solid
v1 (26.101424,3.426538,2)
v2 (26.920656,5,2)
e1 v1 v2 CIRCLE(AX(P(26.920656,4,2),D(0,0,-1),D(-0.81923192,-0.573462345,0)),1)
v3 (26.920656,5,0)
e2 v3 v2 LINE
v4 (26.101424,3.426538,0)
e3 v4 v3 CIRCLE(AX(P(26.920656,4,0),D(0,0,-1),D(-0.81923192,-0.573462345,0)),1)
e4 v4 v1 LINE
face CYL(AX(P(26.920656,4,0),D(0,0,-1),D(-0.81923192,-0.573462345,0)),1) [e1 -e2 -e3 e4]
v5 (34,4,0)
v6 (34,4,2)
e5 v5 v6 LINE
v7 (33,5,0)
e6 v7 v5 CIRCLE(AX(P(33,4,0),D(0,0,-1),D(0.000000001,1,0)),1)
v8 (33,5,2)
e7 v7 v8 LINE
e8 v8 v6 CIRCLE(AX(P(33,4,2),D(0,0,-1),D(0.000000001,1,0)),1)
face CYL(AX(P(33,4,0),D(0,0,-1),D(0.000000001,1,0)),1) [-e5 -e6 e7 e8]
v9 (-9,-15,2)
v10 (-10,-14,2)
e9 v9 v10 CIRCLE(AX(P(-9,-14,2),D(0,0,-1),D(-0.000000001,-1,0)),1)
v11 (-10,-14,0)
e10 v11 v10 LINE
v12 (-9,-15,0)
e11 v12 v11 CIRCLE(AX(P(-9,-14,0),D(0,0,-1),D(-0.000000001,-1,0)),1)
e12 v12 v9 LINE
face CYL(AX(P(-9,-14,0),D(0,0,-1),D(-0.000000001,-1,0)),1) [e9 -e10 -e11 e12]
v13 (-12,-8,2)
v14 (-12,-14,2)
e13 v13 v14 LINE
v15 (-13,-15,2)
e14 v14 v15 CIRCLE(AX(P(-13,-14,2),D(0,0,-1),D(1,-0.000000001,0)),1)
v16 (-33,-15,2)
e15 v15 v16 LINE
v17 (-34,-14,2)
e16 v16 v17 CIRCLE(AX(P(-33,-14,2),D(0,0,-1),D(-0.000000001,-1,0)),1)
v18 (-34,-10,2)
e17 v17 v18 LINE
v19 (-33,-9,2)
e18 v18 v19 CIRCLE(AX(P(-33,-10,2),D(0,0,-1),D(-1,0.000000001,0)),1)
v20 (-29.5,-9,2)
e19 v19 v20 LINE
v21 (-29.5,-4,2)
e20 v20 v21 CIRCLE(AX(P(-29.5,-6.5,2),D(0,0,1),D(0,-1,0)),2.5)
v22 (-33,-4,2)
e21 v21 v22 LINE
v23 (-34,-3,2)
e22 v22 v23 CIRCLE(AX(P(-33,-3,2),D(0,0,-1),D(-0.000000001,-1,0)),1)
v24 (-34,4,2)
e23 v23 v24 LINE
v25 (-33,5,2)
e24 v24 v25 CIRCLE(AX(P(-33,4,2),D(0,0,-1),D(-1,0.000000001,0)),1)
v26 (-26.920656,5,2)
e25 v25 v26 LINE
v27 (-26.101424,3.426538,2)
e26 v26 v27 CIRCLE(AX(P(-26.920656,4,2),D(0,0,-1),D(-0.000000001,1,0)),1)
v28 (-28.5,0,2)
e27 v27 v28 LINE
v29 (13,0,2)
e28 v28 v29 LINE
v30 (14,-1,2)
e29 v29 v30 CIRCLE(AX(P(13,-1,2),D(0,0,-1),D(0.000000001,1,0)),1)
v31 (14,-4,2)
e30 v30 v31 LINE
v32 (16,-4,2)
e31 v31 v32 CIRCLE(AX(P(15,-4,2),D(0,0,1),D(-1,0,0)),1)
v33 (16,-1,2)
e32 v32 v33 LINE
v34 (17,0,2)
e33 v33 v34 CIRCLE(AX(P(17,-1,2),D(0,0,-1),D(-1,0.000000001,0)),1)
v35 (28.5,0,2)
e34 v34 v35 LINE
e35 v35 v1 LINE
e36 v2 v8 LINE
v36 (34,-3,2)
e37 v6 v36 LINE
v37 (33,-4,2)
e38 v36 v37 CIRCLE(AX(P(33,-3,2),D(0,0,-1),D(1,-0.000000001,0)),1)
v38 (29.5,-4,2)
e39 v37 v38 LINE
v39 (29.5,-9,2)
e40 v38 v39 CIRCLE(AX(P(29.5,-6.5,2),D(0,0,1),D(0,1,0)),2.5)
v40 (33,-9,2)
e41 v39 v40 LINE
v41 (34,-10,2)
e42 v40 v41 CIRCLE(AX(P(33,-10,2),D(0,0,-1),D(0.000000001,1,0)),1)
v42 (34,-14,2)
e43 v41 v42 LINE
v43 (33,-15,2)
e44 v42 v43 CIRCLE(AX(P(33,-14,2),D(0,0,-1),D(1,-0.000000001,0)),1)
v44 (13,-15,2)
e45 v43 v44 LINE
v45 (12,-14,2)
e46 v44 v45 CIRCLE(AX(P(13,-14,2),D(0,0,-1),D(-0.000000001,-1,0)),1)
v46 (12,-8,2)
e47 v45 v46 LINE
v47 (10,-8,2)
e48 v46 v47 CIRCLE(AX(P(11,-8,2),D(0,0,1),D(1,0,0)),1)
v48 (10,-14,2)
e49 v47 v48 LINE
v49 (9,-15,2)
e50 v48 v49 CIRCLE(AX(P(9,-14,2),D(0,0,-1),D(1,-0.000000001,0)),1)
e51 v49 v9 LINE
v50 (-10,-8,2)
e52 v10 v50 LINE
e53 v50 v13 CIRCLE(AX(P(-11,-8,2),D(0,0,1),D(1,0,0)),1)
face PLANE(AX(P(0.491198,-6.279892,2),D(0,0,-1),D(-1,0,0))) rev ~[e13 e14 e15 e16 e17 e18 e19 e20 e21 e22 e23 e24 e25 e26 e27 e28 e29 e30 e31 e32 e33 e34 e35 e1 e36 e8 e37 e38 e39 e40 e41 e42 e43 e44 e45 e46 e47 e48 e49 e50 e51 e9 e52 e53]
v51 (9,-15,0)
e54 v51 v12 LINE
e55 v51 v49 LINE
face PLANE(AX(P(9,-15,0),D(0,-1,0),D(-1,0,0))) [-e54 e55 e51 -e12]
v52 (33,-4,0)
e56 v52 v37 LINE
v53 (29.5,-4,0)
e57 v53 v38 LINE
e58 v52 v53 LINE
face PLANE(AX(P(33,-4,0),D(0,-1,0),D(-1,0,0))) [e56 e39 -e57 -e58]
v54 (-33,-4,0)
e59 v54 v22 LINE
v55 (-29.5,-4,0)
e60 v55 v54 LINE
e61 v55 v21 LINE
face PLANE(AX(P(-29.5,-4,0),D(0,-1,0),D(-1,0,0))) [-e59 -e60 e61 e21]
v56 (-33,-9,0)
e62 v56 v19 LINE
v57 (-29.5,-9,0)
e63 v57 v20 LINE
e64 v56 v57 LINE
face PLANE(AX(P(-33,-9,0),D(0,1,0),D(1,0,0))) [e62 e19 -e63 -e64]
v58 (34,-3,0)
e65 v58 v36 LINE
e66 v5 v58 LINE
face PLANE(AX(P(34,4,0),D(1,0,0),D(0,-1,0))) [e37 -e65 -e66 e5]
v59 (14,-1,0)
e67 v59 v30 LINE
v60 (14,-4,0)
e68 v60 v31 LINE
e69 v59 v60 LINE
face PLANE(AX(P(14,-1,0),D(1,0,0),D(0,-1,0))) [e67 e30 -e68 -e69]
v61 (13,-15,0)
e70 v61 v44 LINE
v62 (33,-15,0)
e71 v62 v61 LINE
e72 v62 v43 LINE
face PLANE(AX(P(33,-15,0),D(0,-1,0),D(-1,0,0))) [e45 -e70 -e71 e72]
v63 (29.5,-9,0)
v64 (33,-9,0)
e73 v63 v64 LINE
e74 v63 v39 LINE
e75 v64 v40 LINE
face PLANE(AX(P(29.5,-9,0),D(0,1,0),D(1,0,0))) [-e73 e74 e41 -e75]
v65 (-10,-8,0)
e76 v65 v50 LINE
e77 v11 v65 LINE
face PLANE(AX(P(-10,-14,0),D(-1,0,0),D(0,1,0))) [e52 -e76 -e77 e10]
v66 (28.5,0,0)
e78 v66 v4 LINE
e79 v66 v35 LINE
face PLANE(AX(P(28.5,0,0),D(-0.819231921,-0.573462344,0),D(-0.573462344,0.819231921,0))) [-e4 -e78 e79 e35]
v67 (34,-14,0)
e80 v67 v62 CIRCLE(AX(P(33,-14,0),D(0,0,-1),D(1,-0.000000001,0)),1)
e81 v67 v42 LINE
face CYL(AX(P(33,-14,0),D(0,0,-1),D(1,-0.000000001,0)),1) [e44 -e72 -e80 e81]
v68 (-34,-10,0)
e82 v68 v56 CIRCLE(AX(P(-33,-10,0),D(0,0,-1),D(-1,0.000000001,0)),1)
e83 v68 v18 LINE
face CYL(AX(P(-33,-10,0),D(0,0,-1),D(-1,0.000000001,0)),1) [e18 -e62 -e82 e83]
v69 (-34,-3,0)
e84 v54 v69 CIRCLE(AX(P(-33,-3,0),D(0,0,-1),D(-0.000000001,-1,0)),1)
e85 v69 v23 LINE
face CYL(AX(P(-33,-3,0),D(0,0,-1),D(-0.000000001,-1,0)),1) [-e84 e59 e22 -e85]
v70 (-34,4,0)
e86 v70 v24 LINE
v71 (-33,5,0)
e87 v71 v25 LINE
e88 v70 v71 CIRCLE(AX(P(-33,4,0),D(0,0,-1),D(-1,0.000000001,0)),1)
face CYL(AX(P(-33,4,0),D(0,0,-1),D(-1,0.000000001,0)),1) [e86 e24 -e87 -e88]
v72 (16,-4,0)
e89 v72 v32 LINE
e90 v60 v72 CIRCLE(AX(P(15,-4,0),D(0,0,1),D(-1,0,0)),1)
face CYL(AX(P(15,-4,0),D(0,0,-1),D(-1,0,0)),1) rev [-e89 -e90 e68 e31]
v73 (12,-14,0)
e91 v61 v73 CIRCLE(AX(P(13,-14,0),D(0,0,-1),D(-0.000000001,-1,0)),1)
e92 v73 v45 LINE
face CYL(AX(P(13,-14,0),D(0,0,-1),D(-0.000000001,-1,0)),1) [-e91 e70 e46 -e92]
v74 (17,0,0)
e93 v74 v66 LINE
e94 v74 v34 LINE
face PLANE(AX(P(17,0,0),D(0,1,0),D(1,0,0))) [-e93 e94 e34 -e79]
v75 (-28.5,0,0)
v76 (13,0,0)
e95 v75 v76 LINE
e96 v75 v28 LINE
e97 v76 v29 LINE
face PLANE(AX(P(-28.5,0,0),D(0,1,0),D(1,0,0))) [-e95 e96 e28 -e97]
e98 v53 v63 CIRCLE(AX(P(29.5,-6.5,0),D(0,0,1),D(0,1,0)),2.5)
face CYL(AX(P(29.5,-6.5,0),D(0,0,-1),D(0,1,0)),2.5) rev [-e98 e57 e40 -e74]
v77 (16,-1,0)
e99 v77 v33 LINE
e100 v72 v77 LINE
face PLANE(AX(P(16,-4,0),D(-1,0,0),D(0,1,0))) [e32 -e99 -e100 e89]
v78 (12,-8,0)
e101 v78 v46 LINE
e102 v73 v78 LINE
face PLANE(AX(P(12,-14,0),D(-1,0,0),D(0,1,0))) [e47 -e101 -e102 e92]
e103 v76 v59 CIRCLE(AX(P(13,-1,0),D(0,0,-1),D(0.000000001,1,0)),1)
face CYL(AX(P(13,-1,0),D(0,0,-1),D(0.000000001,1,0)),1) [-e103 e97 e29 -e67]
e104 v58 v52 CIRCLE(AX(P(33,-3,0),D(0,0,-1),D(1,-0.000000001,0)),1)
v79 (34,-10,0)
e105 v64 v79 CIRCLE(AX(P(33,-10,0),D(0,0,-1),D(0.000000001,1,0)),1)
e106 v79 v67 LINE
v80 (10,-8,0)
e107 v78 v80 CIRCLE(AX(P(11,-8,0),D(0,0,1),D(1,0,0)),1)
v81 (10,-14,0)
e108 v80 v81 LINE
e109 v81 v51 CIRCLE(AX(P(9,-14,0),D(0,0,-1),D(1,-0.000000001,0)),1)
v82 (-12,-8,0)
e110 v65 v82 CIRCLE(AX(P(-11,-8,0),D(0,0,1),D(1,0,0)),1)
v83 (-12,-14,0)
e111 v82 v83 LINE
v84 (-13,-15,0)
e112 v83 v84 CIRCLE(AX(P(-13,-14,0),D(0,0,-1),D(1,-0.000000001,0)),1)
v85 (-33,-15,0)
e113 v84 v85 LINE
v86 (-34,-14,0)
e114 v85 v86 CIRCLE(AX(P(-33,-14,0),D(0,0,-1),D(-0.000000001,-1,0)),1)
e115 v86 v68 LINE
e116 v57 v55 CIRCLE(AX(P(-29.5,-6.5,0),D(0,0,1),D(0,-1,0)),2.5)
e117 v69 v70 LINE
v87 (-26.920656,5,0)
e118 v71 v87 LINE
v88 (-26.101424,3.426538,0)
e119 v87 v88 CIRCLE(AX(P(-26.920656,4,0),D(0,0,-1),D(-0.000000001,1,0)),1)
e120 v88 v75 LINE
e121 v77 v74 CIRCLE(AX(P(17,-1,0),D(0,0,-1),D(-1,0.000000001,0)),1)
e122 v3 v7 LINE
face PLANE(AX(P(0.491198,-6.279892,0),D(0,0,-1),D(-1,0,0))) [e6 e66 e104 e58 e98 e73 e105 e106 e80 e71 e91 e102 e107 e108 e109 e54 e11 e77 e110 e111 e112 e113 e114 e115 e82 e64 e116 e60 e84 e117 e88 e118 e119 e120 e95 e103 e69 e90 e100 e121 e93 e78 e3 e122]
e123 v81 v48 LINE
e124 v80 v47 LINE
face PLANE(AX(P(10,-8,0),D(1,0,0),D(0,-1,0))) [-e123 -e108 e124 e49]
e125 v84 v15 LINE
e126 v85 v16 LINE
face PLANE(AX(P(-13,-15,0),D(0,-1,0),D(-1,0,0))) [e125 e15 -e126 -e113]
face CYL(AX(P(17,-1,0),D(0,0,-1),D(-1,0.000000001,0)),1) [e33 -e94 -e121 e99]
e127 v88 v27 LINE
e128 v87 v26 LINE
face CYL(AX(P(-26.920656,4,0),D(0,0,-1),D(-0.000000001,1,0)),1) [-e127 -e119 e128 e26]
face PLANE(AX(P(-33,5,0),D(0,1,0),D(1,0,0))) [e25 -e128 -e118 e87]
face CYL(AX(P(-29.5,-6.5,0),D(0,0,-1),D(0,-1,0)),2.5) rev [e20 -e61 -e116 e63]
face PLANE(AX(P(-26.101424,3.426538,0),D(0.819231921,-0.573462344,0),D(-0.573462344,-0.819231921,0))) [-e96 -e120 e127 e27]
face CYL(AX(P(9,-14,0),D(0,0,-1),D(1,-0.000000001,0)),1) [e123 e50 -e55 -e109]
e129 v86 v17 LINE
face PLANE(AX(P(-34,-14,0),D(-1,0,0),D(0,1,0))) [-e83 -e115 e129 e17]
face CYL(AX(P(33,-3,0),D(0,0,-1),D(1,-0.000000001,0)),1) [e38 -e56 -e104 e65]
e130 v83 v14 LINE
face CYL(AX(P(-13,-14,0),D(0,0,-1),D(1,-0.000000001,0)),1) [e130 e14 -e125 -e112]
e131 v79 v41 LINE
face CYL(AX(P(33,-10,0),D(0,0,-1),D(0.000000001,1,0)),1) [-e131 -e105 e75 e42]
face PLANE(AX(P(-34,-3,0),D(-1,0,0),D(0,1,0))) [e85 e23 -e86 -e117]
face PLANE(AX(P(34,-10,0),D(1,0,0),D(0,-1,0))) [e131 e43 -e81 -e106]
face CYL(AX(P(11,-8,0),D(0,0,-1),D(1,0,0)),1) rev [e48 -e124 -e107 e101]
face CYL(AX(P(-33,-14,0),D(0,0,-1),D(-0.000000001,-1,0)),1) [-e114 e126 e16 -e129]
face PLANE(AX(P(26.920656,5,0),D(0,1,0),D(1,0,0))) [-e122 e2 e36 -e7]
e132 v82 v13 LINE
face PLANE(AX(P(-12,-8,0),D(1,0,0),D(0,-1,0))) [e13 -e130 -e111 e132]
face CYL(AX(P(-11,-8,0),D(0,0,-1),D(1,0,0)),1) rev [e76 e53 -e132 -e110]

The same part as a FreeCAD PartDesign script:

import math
import FreeCAD as App
import Part
import Sketcher
Q = App.Units.Quantity

doc = App.newDocument("Part")
body = doc.addObject("PartDesign::Body", "Body")

# Sketch on XY plane
sketch1 = doc.addObject("Sketcher::SketchObject", "Sketch")
body.addObject(sketch1)
sketch1.AttachmentSupport = (doc.XY_Plane, [""])
sketch1.MapMode = "FlatFace"
sketch1.addGeometry(Part.LineSegment(App.Vector(13, 0, 0), App.Vector(-28.5, 0, 0)), False)
sketch1.addGeometry(Part.LineSegment(App.Vector(-28.5, 0, 0), App.Vector(-26.1, 3.4, 0)), False)
sketch1.addGeometry(Part.ArcOfCircle(Part.Circle(App.Vector(-26.9, 4, 0), App.Vector(0, 0, 1), 1), math.radians(-35), math.radians(90)), False)
sketch1.addGeometry(Part.LineSegment(App.Vector(-26.9, 5, 0), App.Vector(-33, 5, 0)), False)
sketch1.addGeometry(Part.ArcOfCircle(Part.Circle(App.Vector(-33, 4, 0), App.Vector(0, 0, 1), 1), math.radians(90), math.radians(180)), False)
sketch1.addGeometry(Part.LineSegment(App.Vector(-34, 4, 0), App.Vector(-34, -3, 0)), False)
sketch1.addGeometry(Part.ArcOfCircle(Part.Circle(App.Vector(-33, -3, 0), App.Vector(0, 0, 1), 1), math.radians(-180), math.radians(-90)), False)
sketch1.addGeometry(Part.LineSegment(App.Vector(-33, -4, 0), App.Vector(-29.5, -4, 0)), False)
sketch1.addGeometry(Part.ArcOfCircle(Part.Circle(App.Vector(-29.5, -6.5, 0), App.Vector(0, 0, 1), 2.5), math.radians(-90), math.radians(90)), False)
sketch1.addGeometry(Part.LineSegment(App.Vector(-29.5, -9, 0), App.Vector(-33, -9, 0)), False)
sketch1.addGeometry(Part.ArcOfCircle(Part.Circle(App.Vector(-33, -10, 0), App.Vector(0, 0, 1), 1), math.radians(90), math.radians(180)), False)
sketch1.addGeometry(Part.LineSegment(App.Vector(-34, -10, 0), App.Vector(-34, -14, 0)), False)
sketch1.addGeometry(Part.ArcOfCircle(Part.Circle(App.Vector(-33, -14, 0), App.Vector(0, 0, 1), 1), math.radians(-180), math.radians(-90)), False)
sketch1.addGeometry(Part.LineSegment(App.Vector(-33, -15, 0), App.Vector(-13, -15, 0)), False)
sketch1.addGeometry(Part.ArcOfCircle(Part.Circle(App.Vector(-13, -14, 0), App.Vector(0, 0, 1), 1), math.radians(-90), math.radians(0)), False)
sketch1.addGeometry(Part.LineSegment(App.Vector(-12, -14, 0), App.Vector(-12, -8, 0)), False)
sketch1.addGeometry(Part.ArcOfCircle(Part.Circle(App.Vector(-11, -8, 0), App.Vector(0, 0, 1), 1), math.radians(0), math.radians(180)), False)
sketch1.addGeometry(Part.LineSegment(App.Vector(-10, -8, 0), App.Vector(-10, -14, 0)), False)
sketch1.addGeometry(Part.ArcOfCircle(Part.Circle(App.Vector(-9, -14, 0), App.Vector(0, 0, 1), 1), math.radians(-180), math.radians(-90)), False)
sketch1.addGeometry(Part.LineSegment(App.Vector(-9, -15, 0), App.Vector(9, -15, 0)), False)
sketch1.addGeometry(Part.ArcOfCircle(Part.Circle(App.Vector(9, -14, 0), App.Vector(0, 0, 1), 1), math.radians(-90), math.radians(0)), False)
sketch1.addGeometry(Part.LineSegment(App.Vector(10, -14, 0), App.Vector(10, -8, 0)), False)
sketch1.addGeometry(Part.ArcOfCircle(Part.Circle(App.Vector(11, -8, 0), App.Vector(0, 0, 1), 1), math.radians(0), math.radians(180)), False)
sketch1.addGeometry(Part.LineSegment(App.Vector(12, -8, 0), App.Vector(12, -14, 0)), False)
sketch1.addGeometry(Part.ArcOfCircle(Part.Circle(App.Vector(13, -14, 0), App.Vector(0, 0, 1), 1), math.radians(-180), math.radians(-90)), False)
sketch1.addGeometry(Part.LineSegment(App.Vector(13, -15, 0), App.Vector(33, -15, 0)), False)
sketch1.addGeometry(Part.ArcOfCircle(Part.Circle(App.Vector(33, -14, 0), App.Vector(0, 0, 1), 1), math.radians(-90), math.radians(0)), False)
sketch1.addGeometry(Part.LineSegment(App.Vector(34, -14, 0), App.Vector(34, -10, 0)), False)
sketch1.addGeometry(Part.ArcOfCircle(Part.Circle(App.Vector(33, -10, 0), App.Vector(0, 0, 1), 1), math.radians(0), math.radians(90)), False)
sketch1.addGeometry(Part.LineSegment(App.Vector(33, -9, 0), App.Vector(29.5, -9, 0)), False)
sketch1.addGeometry(Part.ArcOfCircle(Part.Circle(App.Vector(29.5, -6.5, 0), App.Vector(0, 0, 1), 2.5), math.radians(90), math.radians(270)), False)
sketch1.addGeometry(Part.LineSegment(App.Vector(29.5, -4, 0), App.Vector(33, -4, 0)), False)
sketch1.addGeometry(Part.ArcOfCircle(Part.Circle(App.Vector(33, -3, 0), App.Vector(0, 0, 1), 1), math.radians(-90), math.radians(0)), False)
sketch1.addGeometry(Part.LineSegment(App.Vector(34, -3, 0), App.Vector(34, 4, 0)), False)
sketch1.addGeometry(Part.ArcOfCircle(Part.Circle(App.Vector(33, 4, 0), App.Vector(0, 0, 1), 1), math.radians(0), math.radians(90)), False)
sketch1.addGeometry(Part.LineSegment(App.Vector(33, 5, 0), App.Vector(26.9, 5, 0)), False)
sketch1.addGeometry(Part.ArcOfCircle(Part.Circle(App.Vector(26.9, 4, 0), App.Vector(0, 0, 1), 1), math.radians(90), math.radians(215)), False)
sketch1.addGeometry(Part.LineSegment(App.Vector(26.1, 3.4, 0), App.Vector(28.5, 0, 0)), False)
sketch1.addGeometry(Part.LineSegment(App.Vector(28.5, 0, 0), App.Vector(17, 0, 0)), False)
sketch1.addGeometry(Part.ArcOfCircle(Part.Circle(App.Vector(17, -1, 0), App.Vector(0, 0, 1), 1), math.radians(90), math.radians(180)), False)
sketch1.addGeometry(Part.LineSegment(App.Vector(16, -1, 0), App.Vector(16, -4, 0)), False)
sketch1.addGeometry(Part.ArcOfCircle(Part.Circle(App.Vector(15, -4, 0), App.Vector(0, 0, 1), 1), math.radians(180), math.radians(360)), False)
sketch1.addGeometry(Part.LineSegment(App.Vector(14, -4, 0), App.Vector(14, -1, 0)), False)
sketch1.addGeometry(Part.ArcOfCircle(Part.Circle(App.Vector(13, -1, 0), App.Vector(0, 0, 1), 1), math.radians(0), math.radians(90)), False)
sketch1.addConstraint(Sketcher.Constraint("Coincident", 0, 2, 1, 1))
sketch1.addConstraint(Sketcher.Constraint("Tangent", 1, 2, 2, 1))
sketch1.addConstraint(Sketcher.Constraint("Tangent", 2, 2, 3, 1))
sketch1.addConstraint(Sketcher.Constraint("Tangent", 3, 2, 4, 1))
sketch1.addConstraint(Sketcher.Constraint("Tangent", 4, 2, 5, 1))
sketch1.addConstraint(Sketcher.Constraint("Tangent", 5, 2, 6, 1))
sketch1.addConstraint(Sketcher.Constraint("Tangent", 6, 2, 7, 1))
sketch1.addConstraint(Sketcher.Constraint("Tangent", 7, 2, 8, 2))
sketch1.addConstraint(Sketcher.Constraint("Tangent", 8, 1, 9, 1))
sketch1.addConstraint(Sketcher.Constraint("Tangent", 9, 2, 10, 1))
sketch1.addConstraint(Sketcher.Constraint("Tangent", 10, 2, 11, 1))
sketch1.addConstraint(Sketcher.Constraint("Tangent", 11, 2, 12, 1))
sketch1.addConstraint(Sketcher.Constraint("Tangent", 12, 2, 13, 1))
sketch1.addConstraint(Sketcher.Constraint("Tangent", 13, 2, 14, 1))
sketch1.addConstraint(Sketcher.Constraint("Tangent", 14, 2, 15, 1))
sketch1.addConstraint(Sketcher.Constraint("Tangent", 15, 2, 16, 2))
sketch1.addConstraint(Sketcher.Constraint("Tangent", 16, 1, 17, 1))
sketch1.addConstraint(Sketcher.Constraint("Tangent", 17, 2, 18, 1))
sketch1.addConstraint(Sketcher.Constraint("Tangent", 18, 2, 19, 1))
sketch1.addConstraint(Sketcher.Constraint("Tangent", 19, 2, 20, 1))
sketch1.addConstraint(Sketcher.Constraint("Tangent", 20, 2, 21, 1))
sketch1.addConstraint(Sketcher.Constraint("Tangent", 21, 2, 22, 2))
sketch1.addConstraint(Sketcher.Constraint("Tangent", 22, 1, 23, 1))
sketch1.addConstraint(Sketcher.Constraint("Tangent", 23, 2, 24, 1))
sketch1.addConstraint(Sketcher.Constraint("Tangent", 24, 2, 25, 1))
sketch1.addConstraint(Sketcher.Constraint("Tangent", 25, 2, 26, 1))
sketch1.addConstraint(Sketcher.Constraint("Tangent", 26, 2, 27, 1))
sketch1.addConstraint(Sketcher.Constraint("Tangent", 27, 2, 28, 1))
sketch1.addConstraint(Sketcher.Constraint("Tangent", 28, 2, 29, 1))
sketch1.addConstraint(Sketcher.Constraint("Tangent", 29, 2, 30, 2))
sketch1.addConstraint(Sketcher.Constraint("Tangent", 30, 1, 31, 1))
sketch1.addConstraint(Sketcher.Constraint("Tangent", 31, 2, 32, 1))
sketch1.addConstraint(Sketcher.Constraint("Tangent", 32, 2, 33, 1))
sketch1.addConstraint(Sketcher.Constraint("Tangent", 33, 2, 34, 1))
sketch1.addConstraint(Sketcher.Constraint("Tangent", 34, 2, 35, 1))
sketch1.addConstraint(Sketcher.Constraint("Tangent", 35, 2, 36, 1))
sketch1.addConstraint(Sketcher.Constraint("Tangent", 36, 2, 37, 1))
sketch1.addConstraint(Sketcher.Constraint("Coincident", 37, 2, 38, 1))
sketch1.addConstraint(Sketcher.Constraint("Tangent", 38, 2, 39, 1))
sketch1.addConstraint(Sketcher.Constraint("Tangent", 39, 2, 40, 1))
sketch1.addConstraint(Sketcher.Constraint("Tangent", 40, 2, 41, 2))
sketch1.addConstraint(Sketcher.Constraint("Tangent", 41, 1, 42, 1))
sketch1.addConstraint(Sketcher.Constraint("Tangent", 42, 2, 43, 1))
sketch1.addConstraint(Sketcher.Constraint("Tangent", 43, 2, 0, 1))
sketch1.addConstraint(Sketcher.Constraint("Horizontal", 0))
sketch1.addConstraint(Sketcher.Constraint("Horizontal", 3))
sketch1.addConstraint(Sketcher.Constraint("Vertical", 5))
sketch1.addConstraint(Sketcher.Constraint("Horizontal", 7))
sketch1.addConstraint(Sketcher.Constraint("Horizontal", 9))
sketch1.addConstraint(Sketcher.Constraint("Vertical", 11))
sketch1.addConstraint(Sketcher.Constraint("Horizontal", 13))
sketch1.addConstraint(Sketcher.Constraint("Vertical", 15))
sketch1.addConstraint(Sketcher.Constraint("Vertical", 17))
sketch1.addConstraint(Sketcher.Constraint("Horizontal", 19))
sketch1.addConstraint(Sketcher.Constraint("Vertical", 21))
sketch1.addConstraint(Sketcher.Constraint("Vertical", 23))
sketch1.addConstraint(Sketcher.Constraint("Horizontal", 25))
sketch1.addConstraint(Sketcher.Constraint("Vertical", 27))
sketch1.addConstraint(Sketcher.Constraint("Horizontal", 29))
sketch1.addConstraint(Sketcher.Constraint("Horizontal", 31))
sketch1.addConstraint(Sketcher.Constraint("Vertical", 33))
sketch1.addConstraint(Sketcher.Constraint("Horizontal", 35))
sketch1.addConstraint(Sketcher.Constraint("Horizontal", 38))
sketch1.addConstraint(Sketcher.Constraint("Vertical", 40))
sketch1.addConstraint(Sketcher.Constraint("Vertical", 42))
sketch1.addConstraint(Sketcher.Constraint("Equal", 2, 4))
sketch1.addConstraint(Sketcher.Constraint("Equal", 4, 6))
sketch1.addConstraint(Sketcher.Constraint("Equal", 6, 10))
sketch1.addConstraint(Sketcher.Constraint("Equal", 10, 12))
sketch1.addConstraint(Sketcher.Constraint("Equal", 12, 14))
sketch1.addConstraint(Sketcher.Constraint("Equal", 14, 16))
sketch1.addConstraint(Sketcher.Constraint("Equal", 16, 18))
sketch1.addConstraint(Sketcher.Constraint("Equal", 18, 20))
sketch1.addConstraint(Sketcher.Constraint("Equal", 20, 22))
sketch1.addConstraint(Sketcher.Constraint("Equal", 22, 24))
sketch1.addConstraint(Sketcher.Constraint("Equal", 24, 26))
sketch1.addConstraint(Sketcher.Constraint("Equal", 26, 28))
sketch1.addConstraint(Sketcher.Constraint("Equal", 8, 30))
sketch1.addConstraint(Sketcher.Constraint("Equal", 28, 32))
sketch1.addConstraint(Sketcher.Constraint("Equal", 32, 34))
sketch1.addConstraint(Sketcher.Constraint("Equal", 34, 36))
sketch1.addConstraint(Sketcher.Constraint("Equal", 36, 39))
sketch1.addConstraint(Sketcher.Constraint("Equal", 39, 41))
sketch1.addConstraint(Sketcher.Constraint("Equal", 41, 43))
sketch1.addConstraint(Sketcher.Constraint("Symmetric", 0, 2, 37, 2, -1, 1))
sketch1.addConstraint(Sketcher.Constraint("Symmetric", 16, 3, 22, 3, -2))
sketch1.addConstraint(Sketcher.Constraint("Symmetric", 12, 3, 26, 3, -2))
sketch1.addConstraint(Sketcher.Constraint("Symmetric", 8, 3, 30, 3, -2))
sketch1.addConstraint(Sketcher.Constraint("Symmetric", 4, 3, 34, 3, -2))
sketch1.addConstraint(Sketcher.Constraint("Symmetric", 1, 2, 36, 2, -2))
sketch1.addConstraint(Sketcher.Constraint("Horizontal", 14, 3, 18, 3))
sketch1.addConstraint(Sketcher.Constraint("Horizontal", 41, 3, 6, 2))
sketch1.addConstraint(Sketcher.Constraint("Vertical", 6, 3, 10, 3))
sketch1.addConstraint(Sketcher.Constraint("Vertical", 24, 3, 43, 3))
sketch1.addConstraint(Sketcher.Constraint("Radius", 2, Q("1 mm")))
sketch1.addConstraint(Sketcher.Constraint("Radius", 8, Q("2.5 mm")))
sketch1.addConstraint(Sketcher.Constraint("DistanceX", 13, 1, 13, 2, Q("20 mm")))
sketch1.addConstraint(Sketcher.Constraint("DistanceX", 19, 1, 19, 2, Q("18 mm")))
sketch1.addConstraint(Sketcher.Constraint("DistanceY", 5, 2, 5, 1, Q("7 mm")))
sketch1.addConstraint(Sketcher.Constraint("DistanceY", 11, 2, 11, 1, Q("4 mm")))
sketch1.addConstraint(Sketcher.Constraint("DistanceY", 15, 1, 15, 2, Q("6 mm")))
sketch1.addConstraint(Sketcher.Constraint("DistanceY", 40, 2, 40, 1, Q("3 mm")))
sketch1.addConstraint(Sketcher.Constraint("DistanceX", 0, 2, 0, 1, Q("41.5 mm")))
sketch1.addConstraint(Sketcher.Constraint("DistanceX", 7, 1, 7, 2, Q("3.5 mm")))
sketch1.addConstraint(Sketcher.Constraint("DistanceX", 3, 2, 3, 1, Q("6.079344 mm")))
pad1 = doc.addObject("PartDesign::Pad", "Pad")
body.addObject(pad1)
pad1.Profile = sketch1
pad1.Length = 2

doc.recompute()
